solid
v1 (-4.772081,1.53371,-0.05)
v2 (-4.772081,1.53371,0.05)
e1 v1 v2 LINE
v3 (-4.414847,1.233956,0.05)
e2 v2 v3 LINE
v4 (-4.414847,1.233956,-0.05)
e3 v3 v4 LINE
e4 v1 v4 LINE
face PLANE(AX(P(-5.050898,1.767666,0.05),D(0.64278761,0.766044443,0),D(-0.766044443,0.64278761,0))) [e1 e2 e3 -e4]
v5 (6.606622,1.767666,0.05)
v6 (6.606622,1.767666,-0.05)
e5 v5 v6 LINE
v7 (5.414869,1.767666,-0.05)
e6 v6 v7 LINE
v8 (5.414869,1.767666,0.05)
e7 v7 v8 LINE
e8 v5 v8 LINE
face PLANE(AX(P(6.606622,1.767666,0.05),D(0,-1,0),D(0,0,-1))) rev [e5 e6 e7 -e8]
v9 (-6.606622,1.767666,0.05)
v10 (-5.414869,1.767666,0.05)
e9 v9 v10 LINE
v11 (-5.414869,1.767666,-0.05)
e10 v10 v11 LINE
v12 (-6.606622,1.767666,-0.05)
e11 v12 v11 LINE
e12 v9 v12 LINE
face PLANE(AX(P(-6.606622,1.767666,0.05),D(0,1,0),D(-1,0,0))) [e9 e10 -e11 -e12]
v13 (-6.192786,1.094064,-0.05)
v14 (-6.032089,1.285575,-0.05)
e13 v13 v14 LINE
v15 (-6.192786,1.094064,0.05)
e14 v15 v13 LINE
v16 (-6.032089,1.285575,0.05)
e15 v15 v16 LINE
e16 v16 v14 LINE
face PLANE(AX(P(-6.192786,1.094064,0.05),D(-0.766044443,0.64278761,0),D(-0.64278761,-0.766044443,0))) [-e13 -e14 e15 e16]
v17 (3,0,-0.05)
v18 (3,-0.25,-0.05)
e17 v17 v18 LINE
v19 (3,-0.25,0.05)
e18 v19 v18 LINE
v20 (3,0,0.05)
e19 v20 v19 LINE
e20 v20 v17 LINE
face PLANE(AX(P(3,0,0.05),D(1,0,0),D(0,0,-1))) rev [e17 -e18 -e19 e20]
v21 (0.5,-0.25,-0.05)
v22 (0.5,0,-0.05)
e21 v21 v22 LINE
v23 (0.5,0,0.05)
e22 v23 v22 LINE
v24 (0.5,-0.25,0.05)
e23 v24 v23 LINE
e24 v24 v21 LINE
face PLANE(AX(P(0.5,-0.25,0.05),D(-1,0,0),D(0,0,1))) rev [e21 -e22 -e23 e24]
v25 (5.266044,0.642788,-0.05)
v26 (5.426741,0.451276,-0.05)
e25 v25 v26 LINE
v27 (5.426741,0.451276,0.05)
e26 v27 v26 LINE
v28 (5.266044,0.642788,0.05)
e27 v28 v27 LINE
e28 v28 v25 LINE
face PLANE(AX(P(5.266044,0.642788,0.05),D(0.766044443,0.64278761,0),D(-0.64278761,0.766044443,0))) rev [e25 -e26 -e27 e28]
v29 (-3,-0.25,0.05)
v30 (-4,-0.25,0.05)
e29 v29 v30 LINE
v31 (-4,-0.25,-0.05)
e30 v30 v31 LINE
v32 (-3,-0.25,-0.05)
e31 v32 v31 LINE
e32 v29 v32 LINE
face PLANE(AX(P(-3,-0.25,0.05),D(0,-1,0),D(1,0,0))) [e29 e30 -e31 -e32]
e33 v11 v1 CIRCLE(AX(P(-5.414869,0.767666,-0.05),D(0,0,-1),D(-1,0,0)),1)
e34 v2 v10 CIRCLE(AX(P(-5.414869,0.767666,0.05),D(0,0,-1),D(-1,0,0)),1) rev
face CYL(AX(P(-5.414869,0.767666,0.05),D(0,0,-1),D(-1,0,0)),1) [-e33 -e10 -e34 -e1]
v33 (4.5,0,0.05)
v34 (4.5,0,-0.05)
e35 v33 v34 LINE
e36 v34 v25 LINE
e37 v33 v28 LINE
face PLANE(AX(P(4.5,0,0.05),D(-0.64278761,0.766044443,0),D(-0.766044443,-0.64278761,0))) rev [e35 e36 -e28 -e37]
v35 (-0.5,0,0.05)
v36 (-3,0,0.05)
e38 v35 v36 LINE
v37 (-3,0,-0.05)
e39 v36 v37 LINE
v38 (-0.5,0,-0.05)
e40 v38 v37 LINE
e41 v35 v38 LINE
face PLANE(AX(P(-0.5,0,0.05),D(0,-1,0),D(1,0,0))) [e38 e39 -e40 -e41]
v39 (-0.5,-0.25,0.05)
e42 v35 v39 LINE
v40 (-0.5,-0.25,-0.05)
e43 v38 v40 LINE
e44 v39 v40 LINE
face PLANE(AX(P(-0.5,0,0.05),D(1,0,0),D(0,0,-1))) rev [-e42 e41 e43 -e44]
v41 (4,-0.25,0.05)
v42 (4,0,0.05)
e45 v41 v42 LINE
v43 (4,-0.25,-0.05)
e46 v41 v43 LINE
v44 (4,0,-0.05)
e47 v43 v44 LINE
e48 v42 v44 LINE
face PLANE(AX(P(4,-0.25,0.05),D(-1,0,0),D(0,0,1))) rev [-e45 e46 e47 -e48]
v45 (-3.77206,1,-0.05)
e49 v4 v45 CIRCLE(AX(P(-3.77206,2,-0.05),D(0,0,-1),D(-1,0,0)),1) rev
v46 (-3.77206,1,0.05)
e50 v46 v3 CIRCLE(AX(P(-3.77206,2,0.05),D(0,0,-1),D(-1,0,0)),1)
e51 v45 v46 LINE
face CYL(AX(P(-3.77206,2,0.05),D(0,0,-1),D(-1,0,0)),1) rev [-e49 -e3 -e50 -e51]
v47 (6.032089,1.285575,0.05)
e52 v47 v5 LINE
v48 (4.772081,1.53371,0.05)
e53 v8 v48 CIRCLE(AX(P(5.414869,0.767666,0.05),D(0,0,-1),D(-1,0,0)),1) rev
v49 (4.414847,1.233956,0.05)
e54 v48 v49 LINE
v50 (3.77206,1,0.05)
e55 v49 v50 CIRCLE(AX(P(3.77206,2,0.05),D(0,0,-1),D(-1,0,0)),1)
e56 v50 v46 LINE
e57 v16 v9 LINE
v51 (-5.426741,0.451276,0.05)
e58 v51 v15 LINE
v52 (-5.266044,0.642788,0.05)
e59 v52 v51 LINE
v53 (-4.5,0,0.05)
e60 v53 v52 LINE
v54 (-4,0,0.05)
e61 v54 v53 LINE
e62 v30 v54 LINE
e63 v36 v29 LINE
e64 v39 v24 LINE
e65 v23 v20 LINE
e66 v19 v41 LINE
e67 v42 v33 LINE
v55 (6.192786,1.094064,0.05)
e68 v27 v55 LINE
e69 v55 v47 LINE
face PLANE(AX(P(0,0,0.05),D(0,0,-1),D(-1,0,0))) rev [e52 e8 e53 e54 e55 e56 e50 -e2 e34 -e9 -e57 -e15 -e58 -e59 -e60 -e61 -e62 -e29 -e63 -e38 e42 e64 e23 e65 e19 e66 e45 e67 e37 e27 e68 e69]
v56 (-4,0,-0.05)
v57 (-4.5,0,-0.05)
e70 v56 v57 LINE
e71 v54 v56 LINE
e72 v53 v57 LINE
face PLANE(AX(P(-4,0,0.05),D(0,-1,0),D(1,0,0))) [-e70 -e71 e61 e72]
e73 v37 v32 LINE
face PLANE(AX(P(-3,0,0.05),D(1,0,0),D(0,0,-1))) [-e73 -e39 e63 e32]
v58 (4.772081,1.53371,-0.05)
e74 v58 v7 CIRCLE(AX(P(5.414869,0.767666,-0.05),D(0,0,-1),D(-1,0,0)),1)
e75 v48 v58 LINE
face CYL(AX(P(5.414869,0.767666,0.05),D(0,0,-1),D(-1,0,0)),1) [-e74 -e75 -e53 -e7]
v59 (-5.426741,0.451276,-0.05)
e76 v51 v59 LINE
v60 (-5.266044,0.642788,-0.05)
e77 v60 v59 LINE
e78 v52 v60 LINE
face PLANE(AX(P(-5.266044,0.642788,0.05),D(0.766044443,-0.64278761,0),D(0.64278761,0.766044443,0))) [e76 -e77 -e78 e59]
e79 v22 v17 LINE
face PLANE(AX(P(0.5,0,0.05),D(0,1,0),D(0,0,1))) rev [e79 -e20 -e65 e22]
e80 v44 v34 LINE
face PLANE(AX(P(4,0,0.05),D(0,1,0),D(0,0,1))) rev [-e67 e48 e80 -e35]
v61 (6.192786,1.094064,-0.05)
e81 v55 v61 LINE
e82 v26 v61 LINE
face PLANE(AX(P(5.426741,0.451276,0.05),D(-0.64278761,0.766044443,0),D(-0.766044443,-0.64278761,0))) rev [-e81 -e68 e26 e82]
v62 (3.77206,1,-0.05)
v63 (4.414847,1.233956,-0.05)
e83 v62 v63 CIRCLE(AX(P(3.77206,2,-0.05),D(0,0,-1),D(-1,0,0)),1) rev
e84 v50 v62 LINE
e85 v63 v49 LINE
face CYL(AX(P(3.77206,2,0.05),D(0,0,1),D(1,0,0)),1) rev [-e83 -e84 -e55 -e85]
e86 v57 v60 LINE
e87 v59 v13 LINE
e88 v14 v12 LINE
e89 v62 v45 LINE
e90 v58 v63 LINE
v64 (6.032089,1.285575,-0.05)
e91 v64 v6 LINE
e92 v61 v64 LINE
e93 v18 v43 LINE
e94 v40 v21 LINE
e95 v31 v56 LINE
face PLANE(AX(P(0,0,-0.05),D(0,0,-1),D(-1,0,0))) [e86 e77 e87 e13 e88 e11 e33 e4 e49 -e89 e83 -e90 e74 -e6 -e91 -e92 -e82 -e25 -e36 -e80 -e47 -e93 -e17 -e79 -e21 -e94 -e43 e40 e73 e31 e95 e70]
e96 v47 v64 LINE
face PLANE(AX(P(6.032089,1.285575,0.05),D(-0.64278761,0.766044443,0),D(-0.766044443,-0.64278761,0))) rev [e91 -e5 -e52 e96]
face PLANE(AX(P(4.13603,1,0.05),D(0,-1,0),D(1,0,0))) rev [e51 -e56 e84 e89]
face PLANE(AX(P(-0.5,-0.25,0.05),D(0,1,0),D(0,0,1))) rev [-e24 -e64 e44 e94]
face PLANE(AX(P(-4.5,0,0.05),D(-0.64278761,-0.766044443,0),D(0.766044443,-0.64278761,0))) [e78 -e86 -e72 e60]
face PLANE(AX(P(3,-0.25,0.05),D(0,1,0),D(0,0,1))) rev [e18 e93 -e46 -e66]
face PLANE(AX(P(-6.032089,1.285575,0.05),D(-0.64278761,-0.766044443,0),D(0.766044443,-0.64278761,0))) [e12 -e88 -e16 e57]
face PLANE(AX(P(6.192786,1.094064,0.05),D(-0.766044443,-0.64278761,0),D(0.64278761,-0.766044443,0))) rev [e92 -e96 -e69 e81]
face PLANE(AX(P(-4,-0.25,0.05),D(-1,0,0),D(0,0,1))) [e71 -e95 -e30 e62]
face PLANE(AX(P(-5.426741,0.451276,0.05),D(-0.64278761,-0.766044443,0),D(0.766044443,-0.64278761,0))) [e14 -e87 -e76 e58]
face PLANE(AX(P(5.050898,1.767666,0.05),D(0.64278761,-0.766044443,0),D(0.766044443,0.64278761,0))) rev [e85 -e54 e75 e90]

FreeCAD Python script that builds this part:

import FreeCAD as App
import Part
import Sketcher
from FreeCAD import Vector
Q = App.Units.Quantity


def edges_at(feature, points):
    """Names of the edges that pass closest to the given points."""
    edges = feature.Shape.Edges
    near = lambda p: min(range(len(edges)), key=lambda i: edges[i].distToShape(Part.Vertex(*p))[0])
    return sorted({f"Edge{near(p) + 1}" for p in points})


def add_polygon(sketch, points):
    """Adds a closed chain of lines whose ends are joined by coincident constraints."""
    first, n = sketch.GeometryCount, len(points)
    for a, b in zip(points, points[1:] + points[:1]):
        sketch.addGeometry(Part.LineSegment(App.Vector(*a, 0), App.Vector(*b, 0)), False)
    for i in range(n):
        sketch.addConstraint(Sketcher.Constraint("Coincident", first + i, 2, first + (i + 1) % n, 1))

doc = App.newDocument("Part")
body = doc.addObject("PartDesign::Body", "Body")

# Sketch on XY plane
sketch1 = doc.addObject("Sketcher::SketchObject", "Sketch")
body.addObject(sketch1)
sketch1.AttachmentSupport = (doc.XY_Plane, [""])
sketch1.MapMode = "FlatFace"
add_polygon(sketch1, [(0.5, 0), (3, 0), (3, -0.25), (4, -0.25), (4, 0), (4.5, 0), (5.27, 0.64), (5.43, 0.45), (6.19, 1.09), (6.03, 1.29), (6.61, 1.77), (5.05, 1.77), (4.14, 1), (-4.14, 1), (-5.05, 1.77), (-6.61, 1.77), (-6.03, 1.29), (-6.19, 1.09), (-5.43, 0.45), (-5.27, 0.64), (-4.5, 0), (-4, 0), (-4, -0.25), (-3, -0.25), (-3, 0), (-0.5, 0), (-0.5, -0.25), (0.5, -0.25)])  # lines 0-27
sketch1.addConstraint([
    Sketcher.Constraint("Horizontal", 0),
    Sketcher.Constraint("Vertical", 1),
    Sketcher.Constraint("Horizontal", 2),
    Sketcher.Constraint("Vertical", 3),
    Sketcher.Constraint("Horizontal", 4),
    Sketcher.Constraint("Horizontal", 10),
    Sketcher.Constraint("Horizontal", 12),
    Sketcher.Constraint("Horizontal", 14),
    Sketcher.Constraint("Horizontal", 20),
    Sketcher.Constraint("Vertical", 21),
    Sketcher.Constraint("Horizontal", 22),
    Sketcher.Constraint("Vertical", 23),
    Sketcher.Constraint("Horizontal", 24),
    Sketcher.Constraint("Vertical", 25),
    Sketcher.Constraint("Horizontal", 26),
    Sketcher.Constraint("Vertical", 27),
    Sketcher.Constraint("Symmetric", 4, 2, 19, 2, -1, 1),
    Sketcher.Constraint("Symmetric", 0, 2, 23, 2, -1, 1),
    Sketcher.Constraint("Symmetric", 10, 2, 13, 2, -2),
    Sketcher.Constraint("Symmetric", 8, 2, 15, 2, -2),
    Sketcher.Constraint("Symmetric", 7, 2, 16, 2, -2),
    Sketcher.Constraint("Symmetric", 6, 2, 17, 2, -2),
    Sketcher.Constraint("Symmetric", 5, 2, 18, 2, -2),
    Sketcher.Constraint("Symmetric", 3, 2, 20, 2, -2),
    Sketcher.Constraint("Symmetric", 24, 2, 27, 2, -2),
    Sketcher.Constraint("Perpendicular", 5, 6),
    Sketcher.Constraint("Perpendicular", 6, 7),
    Sketcher.Constraint("Perpendicular", 7, 8),
    Sketcher.Constraint("Perpendicular", 8, 9),
    Sketcher.Constraint("Parallel", 9, 11),
    Sketcher.Constraint("Parallel", 13, 15),
    Sketcher.Constraint("Perpendicular", 15, 16),
    Sketcher.Constraint("Horizontal", 2, 2, 21, 2),
    Sketcher.Constraint("Horizontal", 22, 2, 25, 2),
    Sketcher.Constraint("Equal", 22, 26),
    Sketcher.Constraint("Equal", 5, 7),
    Sketcher.Constraint("Equal", 6, 8),
    Sketcher.Constraint("DistanceX", 2, 1, 2, 2, 1.0),
    Sketcher.Constraint("Angle", 5, Q("40 deg")),
    Sketcher.Constraint("Distance", 5, 1.0),
    Sketcher.Constraint("DistanceX", 0, 1, 0, 2, 2.5),
    Sketcher.Constraint("DistanceX", 4, 1, 4, 2, 0.5),
    Sketcher.Constraint("DistanceY", -1, 1, 11, 2, 1.0),
    Sketcher.Constraint("DistanceY", 1, 2, 1, 1, 0.25),
    Sketcher.Constraint("Distance", 6, 0.25),
    Sketcher.Constraint("Distance", 9, 0.75),
    Sketcher.Constraint("DistanceX", 12, 2, 12, 1, 8.27206),
])
pad1 = doc.addObject("PartDesign::Pad", "Pad")
body.addObject(pad1)
pad1.Profile = sketch1
pad1.Length = 0.1
pad1.Midplane = True
doc.recompute()

fillet = doc.addObject("PartDesign::Fillet", "Fillet")
body.addObject(fillet)
fillet.Base = (pad1, edges_at(pad1, [
    (-5.051, 1.768, 0),
    (-4.136, 1, 0),
    (4.136, 1, 0),
    (5.051, 1.768, 0),
]))
fillet.Radius = 1

doc.recompute()
